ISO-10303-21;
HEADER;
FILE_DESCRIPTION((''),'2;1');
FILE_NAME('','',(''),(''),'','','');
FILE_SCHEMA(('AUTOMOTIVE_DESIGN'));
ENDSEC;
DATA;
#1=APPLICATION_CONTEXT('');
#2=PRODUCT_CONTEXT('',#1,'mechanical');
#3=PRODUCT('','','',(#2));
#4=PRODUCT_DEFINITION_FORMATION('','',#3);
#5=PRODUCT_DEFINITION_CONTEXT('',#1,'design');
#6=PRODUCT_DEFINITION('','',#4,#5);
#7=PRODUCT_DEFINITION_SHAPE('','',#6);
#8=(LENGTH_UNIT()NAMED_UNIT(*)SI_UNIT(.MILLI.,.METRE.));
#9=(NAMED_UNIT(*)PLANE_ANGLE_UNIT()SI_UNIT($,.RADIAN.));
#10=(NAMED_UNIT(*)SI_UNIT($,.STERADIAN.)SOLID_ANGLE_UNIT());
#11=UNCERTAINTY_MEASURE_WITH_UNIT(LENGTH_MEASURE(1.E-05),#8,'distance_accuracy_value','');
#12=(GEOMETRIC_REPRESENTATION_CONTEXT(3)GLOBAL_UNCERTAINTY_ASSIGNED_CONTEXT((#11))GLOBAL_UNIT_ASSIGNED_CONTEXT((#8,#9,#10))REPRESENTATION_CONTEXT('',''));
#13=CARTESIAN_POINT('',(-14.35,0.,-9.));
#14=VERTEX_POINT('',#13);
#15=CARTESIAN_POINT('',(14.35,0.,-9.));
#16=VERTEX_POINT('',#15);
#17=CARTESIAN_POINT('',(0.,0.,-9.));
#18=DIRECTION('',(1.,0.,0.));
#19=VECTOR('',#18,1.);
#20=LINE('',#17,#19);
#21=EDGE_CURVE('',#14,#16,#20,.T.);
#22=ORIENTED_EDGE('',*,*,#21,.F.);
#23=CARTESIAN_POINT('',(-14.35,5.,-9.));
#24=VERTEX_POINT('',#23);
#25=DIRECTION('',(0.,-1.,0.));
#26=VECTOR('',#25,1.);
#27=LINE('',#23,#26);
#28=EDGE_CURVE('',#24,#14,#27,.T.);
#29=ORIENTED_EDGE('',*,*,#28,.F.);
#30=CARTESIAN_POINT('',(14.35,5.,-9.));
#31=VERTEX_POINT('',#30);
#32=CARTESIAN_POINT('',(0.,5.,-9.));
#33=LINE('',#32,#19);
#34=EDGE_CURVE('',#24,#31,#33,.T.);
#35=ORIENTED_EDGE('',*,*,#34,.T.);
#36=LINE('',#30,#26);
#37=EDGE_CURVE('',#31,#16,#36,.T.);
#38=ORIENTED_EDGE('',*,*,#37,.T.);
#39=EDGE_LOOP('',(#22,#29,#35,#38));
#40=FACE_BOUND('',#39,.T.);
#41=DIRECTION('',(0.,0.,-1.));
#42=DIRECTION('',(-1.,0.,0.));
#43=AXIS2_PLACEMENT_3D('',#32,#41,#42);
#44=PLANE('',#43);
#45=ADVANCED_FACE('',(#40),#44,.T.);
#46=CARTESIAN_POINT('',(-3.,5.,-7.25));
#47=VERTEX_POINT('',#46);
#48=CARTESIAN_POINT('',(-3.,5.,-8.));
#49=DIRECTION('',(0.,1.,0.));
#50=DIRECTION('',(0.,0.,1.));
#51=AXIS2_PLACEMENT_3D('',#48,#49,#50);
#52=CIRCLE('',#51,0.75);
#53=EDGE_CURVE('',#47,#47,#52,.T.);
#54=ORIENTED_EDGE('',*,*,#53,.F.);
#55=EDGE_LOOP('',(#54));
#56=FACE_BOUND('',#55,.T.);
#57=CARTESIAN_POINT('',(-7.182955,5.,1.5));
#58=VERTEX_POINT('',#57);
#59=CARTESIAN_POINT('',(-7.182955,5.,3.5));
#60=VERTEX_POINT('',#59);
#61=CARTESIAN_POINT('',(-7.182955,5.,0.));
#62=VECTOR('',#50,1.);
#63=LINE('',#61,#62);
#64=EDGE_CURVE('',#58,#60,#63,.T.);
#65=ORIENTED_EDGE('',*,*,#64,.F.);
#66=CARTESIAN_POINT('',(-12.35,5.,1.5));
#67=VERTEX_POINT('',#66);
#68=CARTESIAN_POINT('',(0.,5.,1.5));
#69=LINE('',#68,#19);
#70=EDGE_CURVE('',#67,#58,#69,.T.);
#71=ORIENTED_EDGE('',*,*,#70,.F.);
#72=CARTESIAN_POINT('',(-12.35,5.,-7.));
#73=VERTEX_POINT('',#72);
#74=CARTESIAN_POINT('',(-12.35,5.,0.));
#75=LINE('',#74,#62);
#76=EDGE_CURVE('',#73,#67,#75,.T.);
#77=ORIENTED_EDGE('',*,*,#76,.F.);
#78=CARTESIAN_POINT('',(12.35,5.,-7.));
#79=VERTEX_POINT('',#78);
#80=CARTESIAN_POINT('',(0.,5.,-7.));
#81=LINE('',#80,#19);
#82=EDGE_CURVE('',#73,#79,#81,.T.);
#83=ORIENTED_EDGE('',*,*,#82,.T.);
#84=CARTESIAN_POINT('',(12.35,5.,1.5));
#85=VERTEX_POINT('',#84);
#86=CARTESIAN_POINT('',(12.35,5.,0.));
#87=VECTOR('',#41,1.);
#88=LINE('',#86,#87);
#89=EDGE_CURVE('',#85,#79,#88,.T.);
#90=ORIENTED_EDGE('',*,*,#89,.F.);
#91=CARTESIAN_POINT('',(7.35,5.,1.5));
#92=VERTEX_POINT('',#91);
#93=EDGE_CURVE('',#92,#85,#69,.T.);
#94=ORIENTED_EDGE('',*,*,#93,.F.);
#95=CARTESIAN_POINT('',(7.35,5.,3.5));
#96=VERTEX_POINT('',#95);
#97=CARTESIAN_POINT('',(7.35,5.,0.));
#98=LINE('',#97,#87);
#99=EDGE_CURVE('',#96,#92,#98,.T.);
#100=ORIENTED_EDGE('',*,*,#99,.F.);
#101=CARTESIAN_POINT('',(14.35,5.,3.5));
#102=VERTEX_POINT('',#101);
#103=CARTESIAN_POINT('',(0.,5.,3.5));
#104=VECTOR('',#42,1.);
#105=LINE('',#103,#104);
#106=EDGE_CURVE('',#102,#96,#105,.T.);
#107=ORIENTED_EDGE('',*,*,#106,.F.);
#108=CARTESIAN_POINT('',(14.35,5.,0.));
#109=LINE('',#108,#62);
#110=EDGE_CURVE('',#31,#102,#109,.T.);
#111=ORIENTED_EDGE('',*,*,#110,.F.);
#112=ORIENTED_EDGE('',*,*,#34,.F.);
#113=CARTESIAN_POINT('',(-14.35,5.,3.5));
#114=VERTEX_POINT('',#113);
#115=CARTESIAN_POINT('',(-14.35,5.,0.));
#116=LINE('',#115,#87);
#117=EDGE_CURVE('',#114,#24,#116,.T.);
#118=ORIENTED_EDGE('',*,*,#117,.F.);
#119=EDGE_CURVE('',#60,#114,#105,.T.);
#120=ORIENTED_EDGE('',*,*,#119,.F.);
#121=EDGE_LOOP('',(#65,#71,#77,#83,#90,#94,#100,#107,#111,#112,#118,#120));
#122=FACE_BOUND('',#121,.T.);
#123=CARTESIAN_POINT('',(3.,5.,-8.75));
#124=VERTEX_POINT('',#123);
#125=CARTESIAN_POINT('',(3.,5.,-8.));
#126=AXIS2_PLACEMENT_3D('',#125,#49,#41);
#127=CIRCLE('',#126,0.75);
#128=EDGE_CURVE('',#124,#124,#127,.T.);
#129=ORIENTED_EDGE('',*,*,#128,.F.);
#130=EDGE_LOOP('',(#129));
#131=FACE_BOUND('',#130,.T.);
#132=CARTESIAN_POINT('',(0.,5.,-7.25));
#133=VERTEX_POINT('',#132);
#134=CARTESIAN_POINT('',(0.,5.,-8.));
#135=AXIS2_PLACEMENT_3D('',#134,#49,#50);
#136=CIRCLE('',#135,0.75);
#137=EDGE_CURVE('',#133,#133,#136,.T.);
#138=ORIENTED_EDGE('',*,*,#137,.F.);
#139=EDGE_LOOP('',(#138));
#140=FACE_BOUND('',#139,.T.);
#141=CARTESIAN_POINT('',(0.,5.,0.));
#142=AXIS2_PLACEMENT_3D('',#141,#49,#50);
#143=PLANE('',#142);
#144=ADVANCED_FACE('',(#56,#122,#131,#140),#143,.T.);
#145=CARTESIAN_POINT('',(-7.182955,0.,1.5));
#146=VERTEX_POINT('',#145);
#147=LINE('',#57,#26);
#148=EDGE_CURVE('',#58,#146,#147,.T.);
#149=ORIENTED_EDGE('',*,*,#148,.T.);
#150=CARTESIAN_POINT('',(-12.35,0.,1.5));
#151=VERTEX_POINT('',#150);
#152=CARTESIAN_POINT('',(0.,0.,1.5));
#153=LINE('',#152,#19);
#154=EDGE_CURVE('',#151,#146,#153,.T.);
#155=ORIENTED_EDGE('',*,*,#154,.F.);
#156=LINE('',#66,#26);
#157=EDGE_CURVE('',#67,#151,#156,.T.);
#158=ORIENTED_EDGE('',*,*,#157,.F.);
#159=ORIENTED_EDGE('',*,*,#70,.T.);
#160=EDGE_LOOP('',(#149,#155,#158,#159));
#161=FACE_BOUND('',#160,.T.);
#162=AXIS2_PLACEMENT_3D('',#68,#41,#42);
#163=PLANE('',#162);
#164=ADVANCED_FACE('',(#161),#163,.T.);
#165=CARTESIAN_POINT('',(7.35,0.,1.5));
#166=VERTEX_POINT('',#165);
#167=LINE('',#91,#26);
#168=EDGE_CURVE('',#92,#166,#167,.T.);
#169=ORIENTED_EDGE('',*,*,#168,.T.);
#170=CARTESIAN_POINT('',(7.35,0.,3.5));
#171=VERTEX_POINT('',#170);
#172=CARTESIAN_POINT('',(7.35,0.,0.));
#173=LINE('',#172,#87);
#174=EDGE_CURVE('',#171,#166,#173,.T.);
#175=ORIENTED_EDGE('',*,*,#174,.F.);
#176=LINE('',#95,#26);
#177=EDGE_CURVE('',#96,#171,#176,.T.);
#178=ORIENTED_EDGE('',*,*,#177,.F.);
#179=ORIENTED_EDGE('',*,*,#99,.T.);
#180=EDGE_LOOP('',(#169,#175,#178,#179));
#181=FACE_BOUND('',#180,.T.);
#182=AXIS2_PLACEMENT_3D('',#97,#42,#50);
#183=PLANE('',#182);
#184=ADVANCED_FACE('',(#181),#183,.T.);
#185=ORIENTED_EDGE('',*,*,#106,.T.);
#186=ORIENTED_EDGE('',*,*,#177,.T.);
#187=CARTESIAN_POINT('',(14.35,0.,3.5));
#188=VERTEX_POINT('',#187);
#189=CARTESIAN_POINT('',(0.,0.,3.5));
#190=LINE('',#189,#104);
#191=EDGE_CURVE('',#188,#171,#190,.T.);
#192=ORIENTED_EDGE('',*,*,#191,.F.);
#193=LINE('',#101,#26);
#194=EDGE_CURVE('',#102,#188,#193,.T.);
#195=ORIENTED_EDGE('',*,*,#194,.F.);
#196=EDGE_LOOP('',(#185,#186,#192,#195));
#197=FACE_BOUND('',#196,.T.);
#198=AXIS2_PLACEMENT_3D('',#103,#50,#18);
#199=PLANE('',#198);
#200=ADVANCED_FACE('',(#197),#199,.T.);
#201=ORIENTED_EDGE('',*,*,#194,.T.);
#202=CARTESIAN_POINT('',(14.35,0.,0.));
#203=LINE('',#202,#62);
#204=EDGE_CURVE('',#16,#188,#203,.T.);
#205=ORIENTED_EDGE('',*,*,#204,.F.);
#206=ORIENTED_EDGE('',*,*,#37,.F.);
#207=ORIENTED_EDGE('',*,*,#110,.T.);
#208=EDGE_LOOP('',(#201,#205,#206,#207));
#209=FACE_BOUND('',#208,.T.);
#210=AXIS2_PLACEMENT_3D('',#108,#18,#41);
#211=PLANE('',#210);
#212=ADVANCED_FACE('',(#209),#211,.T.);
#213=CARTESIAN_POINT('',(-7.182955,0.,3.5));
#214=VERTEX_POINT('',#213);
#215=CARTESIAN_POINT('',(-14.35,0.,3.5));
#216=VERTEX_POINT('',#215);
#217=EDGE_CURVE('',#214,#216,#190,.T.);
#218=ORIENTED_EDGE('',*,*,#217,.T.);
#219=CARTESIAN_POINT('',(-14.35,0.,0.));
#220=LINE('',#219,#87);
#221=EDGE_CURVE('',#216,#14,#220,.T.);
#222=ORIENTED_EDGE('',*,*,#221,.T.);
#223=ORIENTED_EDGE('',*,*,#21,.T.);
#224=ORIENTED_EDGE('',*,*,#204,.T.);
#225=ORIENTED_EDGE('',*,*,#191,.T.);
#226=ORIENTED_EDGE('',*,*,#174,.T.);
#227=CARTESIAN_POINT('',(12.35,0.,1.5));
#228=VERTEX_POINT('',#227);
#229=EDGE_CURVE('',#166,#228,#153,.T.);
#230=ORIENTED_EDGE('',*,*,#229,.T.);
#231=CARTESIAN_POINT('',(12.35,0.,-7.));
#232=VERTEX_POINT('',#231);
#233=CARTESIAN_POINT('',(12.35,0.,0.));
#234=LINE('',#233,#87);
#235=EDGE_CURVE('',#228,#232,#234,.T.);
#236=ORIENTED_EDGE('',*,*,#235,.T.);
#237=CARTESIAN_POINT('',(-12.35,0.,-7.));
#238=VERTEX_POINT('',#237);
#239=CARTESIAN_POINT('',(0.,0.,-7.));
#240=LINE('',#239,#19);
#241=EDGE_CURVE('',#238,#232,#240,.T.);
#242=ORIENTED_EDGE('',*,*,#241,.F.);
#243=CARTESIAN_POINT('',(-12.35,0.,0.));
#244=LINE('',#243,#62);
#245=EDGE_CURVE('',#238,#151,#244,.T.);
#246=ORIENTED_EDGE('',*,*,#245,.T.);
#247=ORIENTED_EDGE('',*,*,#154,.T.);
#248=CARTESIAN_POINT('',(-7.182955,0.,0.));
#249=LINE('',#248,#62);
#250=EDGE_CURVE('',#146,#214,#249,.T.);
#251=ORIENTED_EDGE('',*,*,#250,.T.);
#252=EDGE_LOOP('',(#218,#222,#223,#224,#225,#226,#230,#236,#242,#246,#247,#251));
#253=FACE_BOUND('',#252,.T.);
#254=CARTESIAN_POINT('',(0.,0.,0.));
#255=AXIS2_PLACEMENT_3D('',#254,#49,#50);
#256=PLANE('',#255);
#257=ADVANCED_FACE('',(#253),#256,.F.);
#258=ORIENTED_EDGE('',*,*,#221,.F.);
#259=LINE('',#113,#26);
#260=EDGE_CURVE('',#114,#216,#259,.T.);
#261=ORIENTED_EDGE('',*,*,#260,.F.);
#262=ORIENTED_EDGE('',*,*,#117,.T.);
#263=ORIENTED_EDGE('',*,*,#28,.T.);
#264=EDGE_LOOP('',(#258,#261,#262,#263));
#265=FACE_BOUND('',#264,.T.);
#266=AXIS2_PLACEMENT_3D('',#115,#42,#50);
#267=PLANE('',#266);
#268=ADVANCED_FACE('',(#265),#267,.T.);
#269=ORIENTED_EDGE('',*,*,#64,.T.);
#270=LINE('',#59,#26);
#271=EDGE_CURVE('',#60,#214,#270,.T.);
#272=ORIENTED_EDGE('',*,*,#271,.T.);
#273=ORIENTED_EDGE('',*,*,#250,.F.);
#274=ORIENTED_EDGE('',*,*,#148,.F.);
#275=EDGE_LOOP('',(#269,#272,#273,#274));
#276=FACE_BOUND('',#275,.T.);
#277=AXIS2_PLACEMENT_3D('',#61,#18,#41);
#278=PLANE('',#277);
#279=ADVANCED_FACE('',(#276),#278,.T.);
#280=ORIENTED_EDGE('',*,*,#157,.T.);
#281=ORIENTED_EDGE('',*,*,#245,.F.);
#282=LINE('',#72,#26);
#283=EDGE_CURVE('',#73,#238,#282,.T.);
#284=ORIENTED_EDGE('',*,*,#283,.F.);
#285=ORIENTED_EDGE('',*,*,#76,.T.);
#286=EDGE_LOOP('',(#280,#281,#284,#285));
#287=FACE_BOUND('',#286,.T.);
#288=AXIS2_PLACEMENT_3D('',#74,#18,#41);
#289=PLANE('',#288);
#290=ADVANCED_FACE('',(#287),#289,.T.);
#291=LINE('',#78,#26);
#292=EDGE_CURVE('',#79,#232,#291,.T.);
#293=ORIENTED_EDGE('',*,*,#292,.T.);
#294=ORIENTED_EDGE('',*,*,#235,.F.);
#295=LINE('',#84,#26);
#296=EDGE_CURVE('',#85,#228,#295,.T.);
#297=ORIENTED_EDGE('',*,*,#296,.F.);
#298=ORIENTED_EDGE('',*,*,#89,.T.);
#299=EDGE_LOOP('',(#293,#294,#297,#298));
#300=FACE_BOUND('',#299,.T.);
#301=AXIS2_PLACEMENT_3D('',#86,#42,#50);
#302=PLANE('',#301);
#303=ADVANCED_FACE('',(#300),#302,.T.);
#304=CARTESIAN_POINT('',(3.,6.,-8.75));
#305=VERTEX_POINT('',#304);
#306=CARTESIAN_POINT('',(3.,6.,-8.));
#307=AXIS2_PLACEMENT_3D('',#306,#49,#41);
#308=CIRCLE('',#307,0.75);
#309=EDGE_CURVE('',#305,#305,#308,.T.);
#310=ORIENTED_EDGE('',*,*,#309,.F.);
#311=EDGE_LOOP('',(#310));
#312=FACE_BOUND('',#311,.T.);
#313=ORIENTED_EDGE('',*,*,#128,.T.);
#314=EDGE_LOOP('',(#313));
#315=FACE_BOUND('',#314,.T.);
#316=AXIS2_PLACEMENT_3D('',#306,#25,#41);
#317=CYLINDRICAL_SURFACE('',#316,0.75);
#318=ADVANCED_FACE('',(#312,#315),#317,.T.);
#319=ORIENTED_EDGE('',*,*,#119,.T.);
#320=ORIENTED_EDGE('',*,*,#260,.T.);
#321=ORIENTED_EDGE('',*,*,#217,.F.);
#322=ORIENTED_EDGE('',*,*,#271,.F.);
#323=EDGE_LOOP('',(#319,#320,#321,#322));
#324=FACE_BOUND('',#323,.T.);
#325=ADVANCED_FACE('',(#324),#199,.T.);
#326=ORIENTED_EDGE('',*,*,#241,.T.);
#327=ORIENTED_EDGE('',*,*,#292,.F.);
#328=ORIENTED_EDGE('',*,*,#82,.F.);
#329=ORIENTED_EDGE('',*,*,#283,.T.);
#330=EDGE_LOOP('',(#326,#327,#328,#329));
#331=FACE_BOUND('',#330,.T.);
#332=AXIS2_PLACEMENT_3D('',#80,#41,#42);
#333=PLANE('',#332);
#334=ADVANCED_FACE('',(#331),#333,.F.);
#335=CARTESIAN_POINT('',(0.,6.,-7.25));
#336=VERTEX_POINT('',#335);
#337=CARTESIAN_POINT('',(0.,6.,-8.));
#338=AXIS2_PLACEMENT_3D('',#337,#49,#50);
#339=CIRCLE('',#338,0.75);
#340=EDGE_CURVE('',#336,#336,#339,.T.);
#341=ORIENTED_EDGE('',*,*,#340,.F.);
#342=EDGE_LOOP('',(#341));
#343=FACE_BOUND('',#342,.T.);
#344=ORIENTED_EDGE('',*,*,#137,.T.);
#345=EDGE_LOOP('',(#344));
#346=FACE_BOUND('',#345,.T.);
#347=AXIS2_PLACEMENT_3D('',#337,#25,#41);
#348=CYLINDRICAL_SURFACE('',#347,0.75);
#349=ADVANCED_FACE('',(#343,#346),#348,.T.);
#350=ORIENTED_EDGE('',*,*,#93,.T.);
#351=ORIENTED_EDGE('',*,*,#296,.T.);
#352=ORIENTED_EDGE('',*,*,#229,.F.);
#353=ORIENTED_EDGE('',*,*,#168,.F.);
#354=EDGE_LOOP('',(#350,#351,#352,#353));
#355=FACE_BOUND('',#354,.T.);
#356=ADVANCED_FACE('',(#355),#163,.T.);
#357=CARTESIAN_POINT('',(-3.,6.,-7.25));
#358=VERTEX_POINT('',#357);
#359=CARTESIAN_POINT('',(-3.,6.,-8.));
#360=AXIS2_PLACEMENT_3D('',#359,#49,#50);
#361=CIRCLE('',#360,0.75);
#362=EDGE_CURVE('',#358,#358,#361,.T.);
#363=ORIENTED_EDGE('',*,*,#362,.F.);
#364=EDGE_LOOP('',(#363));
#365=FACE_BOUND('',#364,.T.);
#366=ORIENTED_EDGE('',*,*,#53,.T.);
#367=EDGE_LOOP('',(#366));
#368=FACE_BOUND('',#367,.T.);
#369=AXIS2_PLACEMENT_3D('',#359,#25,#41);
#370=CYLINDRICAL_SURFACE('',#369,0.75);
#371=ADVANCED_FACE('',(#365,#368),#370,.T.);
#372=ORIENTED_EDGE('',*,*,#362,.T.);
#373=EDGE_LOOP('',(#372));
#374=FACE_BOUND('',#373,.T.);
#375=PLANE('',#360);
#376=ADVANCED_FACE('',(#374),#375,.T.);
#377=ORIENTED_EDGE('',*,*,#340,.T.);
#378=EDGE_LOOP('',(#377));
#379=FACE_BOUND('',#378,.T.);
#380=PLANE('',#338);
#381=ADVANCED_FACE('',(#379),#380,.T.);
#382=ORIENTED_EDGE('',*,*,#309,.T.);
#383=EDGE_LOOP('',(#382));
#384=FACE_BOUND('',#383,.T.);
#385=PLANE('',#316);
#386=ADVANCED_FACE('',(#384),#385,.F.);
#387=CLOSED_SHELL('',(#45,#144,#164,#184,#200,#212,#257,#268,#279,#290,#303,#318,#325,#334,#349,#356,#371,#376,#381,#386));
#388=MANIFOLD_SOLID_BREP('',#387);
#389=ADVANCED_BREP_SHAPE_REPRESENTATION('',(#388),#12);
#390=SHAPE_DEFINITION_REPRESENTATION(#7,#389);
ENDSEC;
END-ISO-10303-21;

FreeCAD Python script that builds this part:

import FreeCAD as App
import Part
import Sketcher
Q = App.Units.Quantity


def add_polygon(sketch, points):
    """Adds a closed chain of lines whose ends are joined by coincident constraints."""
    first, n = sketch.GeometryCount, len(points)
    for a, b in zip(points, points[1:] + points[:1]):
        sketch.addGeometry(Part.LineSegment(App.Vector(*a, 0), App.Vector(*b, 0)), False)
    for i in range(n):
        sketch.addConstraint(Sketcher.Constraint("Coincident", first + i, 2, first + (i + 1) % n, 1))

doc = App.newDocument("Part")
body = doc.addObject("PartDesign::Body", "Body")

sketch1 = body.newObject("Sketcher::SketchObject", "Sketch")
sketch1.AttachmentSupport = (doc.getObject("XZ_Plane"), [""])
sketch1.MapMode = "FlatFace"
add_polygon(sketch1, [(-12.3, -7), (12.3, -7), (12.3, 1.5), (7.3, 1.5), (7.3, 3.5), (14.3, 3.5), (14.3, -9), (-14.3, -9), (-14.3, 3.5), (-7.2, 3.5), (-7.2, 1.5), (-12.3, 1.5)])
sketch1.addConstraint(Sketcher.Constraint("Horizontal", 0))
sketch1.addConstraint(Sketcher.Constraint("Vertical", 1))
sketch1.addConstraint(Sketcher.Constraint("Horizontal", 2))
sketch1.addConstraint(Sketcher.Constraint("Vertical", 3))
sketch1.addConstraint(Sketcher.Constraint("Horizontal", 4))
sketch1.addConstraint(Sketcher.Constraint("Vertical", 5))
sketch1.addConstraint(Sketcher.Constraint("Horizontal", 6))
sketch1.addConstraint(Sketcher.Constraint("Vertical", 7))
sketch1.addConstraint(Sketcher.Constraint("Horizontal", 8))
sketch1.addConstraint(Sketcher.Constraint("Vertical", 9))
sketch1.addConstraint(Sketcher.Constraint("Horizontal", 10))
sketch1.addConstraint(Sketcher.Constraint("Vertical", 11))
sketch1.addConstraint(Sketcher.Constraint("Symmetric", 4, 2, 7, 2, -2))
sketch1.addConstraint(Sketcher.Constraint("Symmetric", 1, 2, 10, 2, -2))
sketch1.addConstraint(Sketcher.Constraint("DistanceX", 2, 2, 2, 1, Q("5 mm")))
sketch1.addConstraint(Sketcher.Constraint("DistanceX", 4, 1, 4, 2, Q("7 mm")))
sketch1.addConstraint(Sketcher.Constraint("DistanceY", 3, 1, 3, 2, Q("2 mm")))
sketch1.addConstraint(Sketcher.Constraint("DistanceX", 0, 1, 0, 2, Q("24.7 mm")))
sketch1.addConstraint(Sketcher.Constraint("DistanceY", 1, 1, 1, 2, Q("8.5 mm")))
sketch1.addConstraint(Sketcher.Constraint("DistanceY", 5, 2, 5, 1, Q("12.5 mm")))
sketch1.addConstraint(Sketcher.Constraint("DistanceY", 0, 2, -1, 1, Q("7 mm")))
sketch1.addConstraint(Sketcher.Constraint("DistanceX", 8, 1, 8, 2, Q("7.167045 mm")))
pad1 = body.newObject("PartDesign::Pad", "Pad")
pad1.Profile = sketch1
pad1.Length = 5
pad1.Reversed = True

sketch2 = body.newObject("Sketcher::SketchObject", "Sketch001")
sketch2.AttachmentSupport = (doc.getObject("XZ_Plane"), [""])
sketch2.MapMode = "FlatFace"
sketch2.AttachmentOffset = App.Placement(App.Vector(0, 0, -5), App.Rotation())
sketch2.addGeometry(Part.Circle(App.Vector(0, -8, 0), App.Vector(0, 0, 1), 0.8), False)
sketch2.addGeometry(Part.Circle(App.Vector(-3, -8, 0), App.Vector(0, 0, 1), 0.8), False)
sketch2.addGeometry(Part.Circle(App.Vector(3, -8, 0), App.Vector(0, 0, 1), 0.8), False)
sketch2.addConstraint(Sketcher.Constraint("Equal", 0, 1))
sketch2.addConstraint(Sketcher.Constraint("Equal", 1, 2))
sketch2.addConstraint(Sketcher.Constraint("Symmetric", 1, 3, 2, 3, -2))
sketch2.addConstraint(Sketcher.Constraint("PointOnObject", 0, 3, -2))
sketch2.addConstraint(Sketcher.Constraint("Horizontal", 0, 3, 1, 3))
sketch2.addConstraint(Sketcher.Constraint("Diameter", 0, Q("1.5 mm")))
sketch2.addConstraint(Sketcher.Constraint("DistanceY", 0, 3, -1, 1, Q("8 mm")))
sketch2.addConstraint(Sketcher.Constraint("DistanceX", 1, 3, -1, 1, Q("3 mm")))
pad2 = body.newObject("PartDesign::Pad", "Pad001")
pad2.Profile = sketch2
pad2.Length = 1
pad2.Reversed = True

doc.recompute()
